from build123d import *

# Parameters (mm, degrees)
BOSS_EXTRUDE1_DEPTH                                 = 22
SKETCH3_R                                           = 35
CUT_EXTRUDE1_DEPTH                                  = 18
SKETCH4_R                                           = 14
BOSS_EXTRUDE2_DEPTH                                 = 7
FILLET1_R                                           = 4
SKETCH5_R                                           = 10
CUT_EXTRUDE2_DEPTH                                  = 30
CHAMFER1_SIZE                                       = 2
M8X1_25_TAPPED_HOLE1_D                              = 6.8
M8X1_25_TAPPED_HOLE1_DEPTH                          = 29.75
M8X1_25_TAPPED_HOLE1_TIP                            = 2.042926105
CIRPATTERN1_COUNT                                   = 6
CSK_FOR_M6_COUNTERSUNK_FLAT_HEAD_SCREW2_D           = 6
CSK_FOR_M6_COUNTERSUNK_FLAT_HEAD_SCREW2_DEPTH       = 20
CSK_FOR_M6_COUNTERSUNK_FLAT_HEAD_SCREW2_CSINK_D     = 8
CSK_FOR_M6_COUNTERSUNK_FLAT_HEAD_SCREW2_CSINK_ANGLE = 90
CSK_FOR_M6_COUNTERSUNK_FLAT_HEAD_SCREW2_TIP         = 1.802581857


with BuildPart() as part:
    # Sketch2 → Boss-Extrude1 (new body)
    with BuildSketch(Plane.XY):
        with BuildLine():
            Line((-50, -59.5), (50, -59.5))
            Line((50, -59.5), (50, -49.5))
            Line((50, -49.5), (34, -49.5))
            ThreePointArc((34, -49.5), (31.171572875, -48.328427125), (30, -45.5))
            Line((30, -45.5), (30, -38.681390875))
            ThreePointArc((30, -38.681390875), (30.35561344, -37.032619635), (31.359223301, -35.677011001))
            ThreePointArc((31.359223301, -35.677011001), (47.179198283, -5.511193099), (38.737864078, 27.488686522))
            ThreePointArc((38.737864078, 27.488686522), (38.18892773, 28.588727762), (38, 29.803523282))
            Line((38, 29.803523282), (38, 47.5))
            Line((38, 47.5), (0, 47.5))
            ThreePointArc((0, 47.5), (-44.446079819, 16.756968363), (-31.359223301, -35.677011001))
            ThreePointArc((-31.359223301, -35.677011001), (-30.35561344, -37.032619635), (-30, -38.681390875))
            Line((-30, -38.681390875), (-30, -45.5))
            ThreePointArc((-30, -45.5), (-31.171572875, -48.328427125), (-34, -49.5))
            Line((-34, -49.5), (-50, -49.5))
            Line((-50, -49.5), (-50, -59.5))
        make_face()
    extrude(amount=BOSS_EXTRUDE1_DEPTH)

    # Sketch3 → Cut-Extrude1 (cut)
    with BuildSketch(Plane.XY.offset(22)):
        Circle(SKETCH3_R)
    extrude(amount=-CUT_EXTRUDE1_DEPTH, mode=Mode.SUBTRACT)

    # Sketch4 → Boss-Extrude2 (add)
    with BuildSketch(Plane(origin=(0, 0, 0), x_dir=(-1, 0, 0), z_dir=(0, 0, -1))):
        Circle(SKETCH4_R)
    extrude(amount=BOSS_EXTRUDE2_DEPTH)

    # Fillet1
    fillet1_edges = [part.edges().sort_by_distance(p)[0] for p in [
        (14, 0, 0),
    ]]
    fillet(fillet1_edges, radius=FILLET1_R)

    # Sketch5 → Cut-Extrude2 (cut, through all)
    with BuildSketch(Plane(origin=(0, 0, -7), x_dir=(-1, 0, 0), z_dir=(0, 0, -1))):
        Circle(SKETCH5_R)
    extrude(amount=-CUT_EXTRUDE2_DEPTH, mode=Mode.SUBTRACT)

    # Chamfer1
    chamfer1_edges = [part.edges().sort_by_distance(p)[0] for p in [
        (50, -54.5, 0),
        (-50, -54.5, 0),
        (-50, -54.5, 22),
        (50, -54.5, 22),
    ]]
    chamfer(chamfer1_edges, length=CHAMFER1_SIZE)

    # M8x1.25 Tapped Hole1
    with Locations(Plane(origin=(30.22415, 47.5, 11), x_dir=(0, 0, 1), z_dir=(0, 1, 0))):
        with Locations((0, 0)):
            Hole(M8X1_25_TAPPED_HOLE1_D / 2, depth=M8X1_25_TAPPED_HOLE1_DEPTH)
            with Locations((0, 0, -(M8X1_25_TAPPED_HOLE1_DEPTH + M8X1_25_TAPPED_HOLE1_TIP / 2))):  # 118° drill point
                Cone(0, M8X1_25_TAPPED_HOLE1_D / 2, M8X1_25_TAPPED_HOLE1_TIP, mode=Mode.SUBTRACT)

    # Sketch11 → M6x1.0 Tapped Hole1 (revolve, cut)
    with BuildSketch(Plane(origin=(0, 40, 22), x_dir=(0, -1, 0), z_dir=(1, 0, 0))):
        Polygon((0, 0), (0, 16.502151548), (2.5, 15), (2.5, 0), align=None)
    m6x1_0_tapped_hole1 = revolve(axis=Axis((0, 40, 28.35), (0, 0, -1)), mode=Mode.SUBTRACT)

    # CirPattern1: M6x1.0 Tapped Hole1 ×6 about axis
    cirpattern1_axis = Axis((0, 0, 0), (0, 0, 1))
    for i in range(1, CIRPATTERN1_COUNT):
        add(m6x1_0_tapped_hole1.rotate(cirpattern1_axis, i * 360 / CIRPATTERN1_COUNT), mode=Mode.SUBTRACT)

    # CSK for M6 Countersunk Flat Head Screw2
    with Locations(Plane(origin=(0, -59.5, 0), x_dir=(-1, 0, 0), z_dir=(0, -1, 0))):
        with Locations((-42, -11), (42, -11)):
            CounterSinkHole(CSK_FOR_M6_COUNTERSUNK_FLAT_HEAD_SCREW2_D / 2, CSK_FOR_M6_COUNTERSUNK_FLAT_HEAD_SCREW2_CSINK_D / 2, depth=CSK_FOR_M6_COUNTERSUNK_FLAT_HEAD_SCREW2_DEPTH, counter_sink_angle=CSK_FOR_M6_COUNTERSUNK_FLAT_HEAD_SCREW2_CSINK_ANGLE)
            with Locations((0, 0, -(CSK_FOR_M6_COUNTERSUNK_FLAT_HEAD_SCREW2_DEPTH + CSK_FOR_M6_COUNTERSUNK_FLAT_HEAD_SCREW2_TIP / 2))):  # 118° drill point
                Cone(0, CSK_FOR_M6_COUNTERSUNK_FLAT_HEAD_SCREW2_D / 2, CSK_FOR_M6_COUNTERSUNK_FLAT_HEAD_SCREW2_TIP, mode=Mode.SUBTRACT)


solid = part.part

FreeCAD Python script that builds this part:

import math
import FreeCAD as App
import Part
import Sketcher
Q = App.Units.Quantity


def edges_at(feature, points):
    """Names of the edges that pass closest to the given points."""
    edges = feature.Shape.Edges
    near = lambda p: min(range(len(edges)), key=lambda i: edges[i].distToShape(Part.Vertex(*p))[0])
    return sorted({f"Edge{near(p) + 1}" for p in points})


def add_polygon(sketch, points):
    """Adds a closed chain of lines whose ends are joined by coincident constraints."""
    first, n = sketch.GeometryCount, len(points)
    for a, b in zip(points, points[1:] + points[:1]):
        sketch.addGeometry(Part.LineSegment(App.Vector(*a, 0), App.Vector(*b, 0)), False)
    for i in range(n):
        sketch.addConstraint(Sketcher.Constraint("Coincident", first + i, 2, first + (i + 1) % n, 1))

doc = App.newDocument("Part")
params = doc.addObject("Spreadsheet::Sheet", "Params")
for row, (alias, value) in enumerate([
    ("sketch1_radius", "4 mm"),
    ("sketch1_radius2", "47.5 mm"),
    ("sketch1_width", "100 mm"),
    ("sketch1_width2", "16 mm"),
    ("sketch1_width3", "38 mm"),
    ("pad1_length", "22 mm"),
    ("sketch2_diameter", "70 mm"),
    ("pocket1_length", "18 mm"),
    ("sketch3_diameter", "28 mm"),
    ("pad2_length", "7 mm"),
    ("fillet_radius", "4 mm"),
    ("sketch4_diameter", "20 mm"),
    ("chamfer_size", "2 mm"),
    ("sketch5_diameter", "6.8 mm"),
    ("hole_diameter", "6.8 mm"),
    ("hole_depth", "29.75 mm"),
    ("sketch6_height", "15 mm"),
    ("sketch6_width", "2.5 mm"),
    ("groove_angle", "360 deg"),
    ("sketch7_diameter", "6 mm"),
    ("hole2_diameter", "6 mm"),
    ("hole2_depth", "20 mm"),
    ("hole2_csink_diameter", "8 mm"),
], start=1):
    params.set(f"A{row}", alias)
    params.set(f"B{row}", "=" + value)
    params.setAlias(f"B{row}", alias)

body = doc.addObject("PartDesign::Body", "Body")

sketch1 = doc.addObject("Sketcher::SketchObject", "Sketch")
body.addObject(sketch1)
sketch1.AttachmentSupport = (doc.XY_Plane, [""])
sketch1.MapMode = "FlatFace"
sketch1.addGeometry([
    Part.LineSegment(App.Vector(-50, -59.5, 0), App.Vector(50, -59.5, 0)),
    Part.LineSegment(App.Vector(50, -59.5, 0), App.Vector(50, -49.5, 0)),
    Part.LineSegment(App.Vector(50, -49.5, 0), App.Vector(34, -49.5, 0)),
    Part.ArcOfCircle(Part.Circle(App.Vector(34, -45.5, 0), App.Vector(0, 0, 1), 4), math.radians(180), math.radians(270)),
    Part.LineSegment(App.Vector(30, -45.5, 0), App.Vector(30, -38.681391, 0)),
    Part.ArcOfCircle(Part.Circle(App.Vector(34, -38.681391, 0), App.Vector(0, 0, 1), 4), math.radians(131.314683), math.radians(180)),
    Part.ArcOfCircle(Part.Circle(App.Vector(0, 0, 0), App.Vector(0, 0, 1), 47.5), math.radians(-48.685317), math.radians(35.359805)),
    Part.ArcOfCircle(Part.Circle(App.Vector(42, 29.803523, 0), App.Vector(0, 0, 1), 4), math.radians(180), math.radians(215.359805)),
    Part.LineSegment(App.Vector(38, 29.803523, 0), App.Vector(38, 47.5, 0)),
    Part.LineSegment(App.Vector(38, 47.5, 0), App.Vector(0, 47.5, 0)),
    Part.ArcOfCircle(Part.Circle(App.Vector(0, 0, 0), App.Vector(0, 0, 1), 47.5), math.radians(90), math.radians(228.685317)),
    Part.ArcOfCircle(Part.Circle(App.Vector(-34, -38.681391, 0), App.Vector(0, 0, 1), 4), math.radians(0), math.radians(48.685317)),
    Part.LineSegment(App.Vector(-30, -38.681391, 0), App.Vector(-30, -45.5, 0)),
    Part.ArcOfCircle(Part.Circle(App.Vector(-34, -45.5, 0), App.Vector(0, 0, 1), 4), math.radians(-90), math.radians(0)),
    Part.LineSegment(App.Vector(-34, -49.5, 0), App.Vector(-50, -49.5, 0)),
    Part.LineSegment(App.Vector(-50, -49.5, 0), App.Vector(-50, -59.5, 0)),
], False)
sketch1.addConstraint([
    Sketcher.Constraint("Coincident", 0, 2, 1, 1),
    Sketcher.Constraint("Coincident", 1, 2, 2, 1),
    Sketcher.Constraint("Tangent", 2, 2, 3, 2),
    Sketcher.Constraint("Tangent", 3, 1, 4, 1),
    Sketcher.Constraint("Tangent", 4, 2, 5, 2),
    Sketcher.Constraint("Tangent", 5, 1, 6, 1),
    Sketcher.Constraint("Tangent", 6, 2, 7, 2),
    Sketcher.Constraint("Tangent", 7, 1, 8, 1),
    Sketcher.Constraint("Coincident", 8, 2, 9, 1),
    Sketcher.Constraint("Tangent", 9, 2, 10, 1),
    Sketcher.Constraint("Tangent", 10, 2, 11, 2),
    Sketcher.Constraint("Tangent", 11, 1, 12, 1),
    Sketcher.Constraint("Tangent", 12, 2, 13, 2),
    Sketcher.Constraint("Tangent", 13, 1, 14, 1),
    Sketcher.Constraint("Coincident", 14, 2, 15, 1),
    Sketcher.Constraint("Coincident", 15, 2, 0, 1),
    Sketcher.Constraint("Horizontal", 0),
    Sketcher.Constraint("Vertical", 1),
    Sketcher.Constraint("Horizontal", 2),
    Sketcher.Constraint("Vertical", 4),
    Sketcher.Constraint("Vertical", 8),
    Sketcher.Constraint("Horizontal", 9),
    Sketcher.Constraint("Vertical", 12),
    Sketcher.Constraint("Horizontal", 14),
    Sketcher.Constraint("Vertical", 15),
    Sketcher.Constraint("Coincident", 6, 3, -1, 1),
    Sketcher.Constraint("Coincident", 10, 3, -1, 1),
    Sketcher.Constraint("Equal", 3, 5),
    Sketcher.Constraint("Equal", 5, 7),
    Sketcher.Constraint("Equal", 6, 10),
    Sketcher.Constraint("Equal", 7, 11),
    Sketcher.Constraint("Equal", 11, 13),
    Sketcher.Constraint("Symmetric", 3, 3, 13, 3, -2),
    Sketcher.Constraint("Equal", 2, 14),
    Sketcher.Constraint("Radius", 3, 4.0),
    Sketcher.Constraint("Radius", 6, 47.5),
    Sketcher.Constraint("DistanceX", 0, 1, 0, 2, 100.0),
    Sketcher.Constraint("DistanceX", 2, 2, 2, 1, 16.0),
    Sketcher.Constraint("DistanceX", 9, 2, 9, 1, 38.0),
    Sketcher.Constraint("DistanceY", 1, 1, 1, 2, 10.0),
    Sketcher.Constraint("DistanceY", 3, 3, -1, 1, 45.5),
])
sketch1.setExpression("Constraints[34]", "Params.sketch1_radius")
sketch1.setExpression("Constraints[35]", "Params.sketch1_radius2")
sketch1.setExpression("Constraints[36]", "Params.sketch1_width")
sketch1.setExpression("Constraints[37]", "Params.sketch1_width2")
sketch1.setExpression("Constraints[38]", "Params.sketch1_width3")
pad1 = doc.addObject("PartDesign::Pad", "Pad")
body.addObject(pad1)
pad1.Profile = sketch1
pad1.setExpression("Length", "Params.pad1_length")

sketch2 = doc.addObject("Sketcher::SketchObject", "Sketch001")
body.addObject(sketch2)
sketch2.AttachmentSupport = (doc.XY_Plane, [""])
sketch2.MapMode = "FlatFace"
sketch2.AttachmentOffset = App.Placement(App.Vector(0, 0, 22), App.Rotation())
sketch2.addGeometry(Part.Circle(App.Vector(0, 0, 0), App.Vector(0, 0, 1), 35), False)
sketch2.addConstraint([
    Sketcher.Constraint("Coincident", 0, 3, -1, 1),
    Sketcher.Constraint("Diameter", 0, 70.0),
])
sketch2.setExpression("Constraints[1]", "Params.sketch2_diameter")
pocket1 = doc.addObject("PartDesign::Pocket", "Pocket")
body.addObject(pocket1)
pocket1.Profile = sketch2
pocket1.setExpression("Length", "Params.pocket1_length")

sketch3 = doc.addObject("Sketcher::SketchObject", "Sketch002")
body.addObject(sketch3)
sketch3.AttachmentSupport = (doc.XY_Plane, [""])
sketch3.MapMode = "FlatFace"
sketch3.addGeometry(Part.Circle(App.Vector(0, 0, 0), App.Vector(0, 0, 1), 14), False)
sketch3.addConstraint([
    Sketcher.Constraint("Coincident", 0, 3, -1, 1),
    Sketcher.Constraint("Diameter", 0, 28.0),
])
sketch3.setExpression("Constraints[1]", "Params.sketch3_diameter")
pad2 = doc.addObject("PartDesign::Pad", "Pad001")
body.addObject(pad2)
pad2.Profile = sketch3
pad2.setExpression("Length", "Params.pad2_length")
pad2.Reversed = True
doc.recompute()

fillet = doc.addObject("PartDesign::Fillet", "Fillet")
body.addObject(fillet)
fillet.Base = (pad2, edges_at(pad2, [(14, 0, 0)]))
fillet.setExpression("Radius", "Params.fillet_radius")

sketch4 = doc.addObject("Sketcher::SketchObject", "Sketch003")
body.addObject(sketch4)
sketch4.AttachmentSupport = (doc.XY_Plane, [""])
sketch4.MapMode = "FlatFace"
sketch4.AttachmentOffset = App.Placement(App.Vector(0, 0, -7), App.Rotation())
sketch4.addGeometry(Part.Circle(App.Vector(0, 0, 0), App.Vector(0, 0, 1), 10), False)
sketch4.addConstraint([
    Sketcher.Constraint("Coincident", 0, 3, -1, 1),
    Sketcher.Constraint("Diameter", 0, 20.0),
])
sketch4.setExpression("Constraints[1]", "Params.sketch4_diameter")
pocket2 = doc.addObject("PartDesign::Pocket", "Pocket001")
body.addObject(pocket2)
pocket2.Profile = sketch4
pocket2.Type = "ThroughAll"
pocket2.Reversed = True
doc.recompute()

chamfer = doc.addObject("PartDesign::Chamfer", "Chamfer")
body.addObject(chamfer)
chamfer.Base = (pocket2, edges_at(pocket2, [
    (50, -54.5, 0),
    (-50, -54.5, 0),
    (-50, -54.5, 22),
    (50, -54.5, 22),
]))
chamfer.setExpression("Size", "Params.chamfer_size")

sketch5 = doc.addObject("Sketcher::SketchObject", "Sketch004")
body.addObject(sketch5)
sketch5.AttachmentSupport = (doc.XZ_Plane, [""])
sketch5.MapMode = "FlatFace"
sketch5.AttachmentOffset = App.Placement(App.Vector(0, 0, -47.5), App.Rotation())
sketch5.addGeometry(Part.Circle(App.Vector(30.22415, 11, 0), App.Vector(0, 0, 1), 3.4), False)
sketch5.addConstraint([
    Sketcher.Constraint("Diameter", 0, 6.8),
    Sketcher.Constraint("DistanceY", -1, 1, 0, 3, 11.0),
    Sketcher.Constraint("DistanceX", -1, 1, 0, 3, 30.22415),
])
sketch5.setExpression("Constraints[0]", "Params.sketch5_diameter")
doc.recompute()
hole = doc.addObject("PartDesign::Hole", "Hole")
body.addObject(hole)
hole.Profile = sketch5
hole.ThreadType = "None"
hole.setExpression("Diameter", "Params.hole_diameter")
hole.DepthType = "Dimension"
hole.setExpression("Depth", "Params.hole_depth")
hole.DrillPoint = "Angled"
hole.DrillPointAngle = 118
hole.Reversed = True

sketch6 = doc.addObject("Sketcher::SketchObject", "Sketch005")
body.addObject(sketch6)
sketch6.AttachmentSupport = (doc.YZ_Plane, [""])
sketch6.MapMode = "FlatFace"
add_polygon(sketch6, [(40, 5.497848), (40, 22), (37.5, 22), (37.5, 7)])
sketch6.addGeometry(Part.LineSegment(App.Vector(40, 22, 0), App.Vector(40, 5.497848, 0)), True)
sketch6.addConstraint([
    Sketcher.Constraint("Vertical", 0),
    Sketcher.Constraint("Horizontal", 1),
    Sketcher.Constraint("Vertical", 2),
    Sketcher.Constraint("Vertical", 4),
    Sketcher.Constraint("Coincident", 4, 1, 0, 2),
    Sketcher.Constraint("Equal", 0, 4),
    Sketcher.Constraint("DistanceY", 2, 2, 2, 1, 15.0),
    Sketcher.Constraint("Angle", 3, Q("-31 deg")),
    Sketcher.Constraint("DistanceX", 1, 2, 1, 1, 2.5),
    Sketcher.Constraint("DistanceX", -1, 1, 0, 2, 40.0),
    Sketcher.Constraint("DistanceY", -1, 1, 0, 2, 22.0),
])
sketch6.setExpression("Constraints[10]", "Params.sketch6_height")
sketch6.setExpression("Constraints[12]", "Params.sketch6_width")
groove = doc.addObject("PartDesign::Groove", "Groove")
body.addObject(groove)
groove.Profile = sketch6
groove.ReferenceAxis = (sketch6, ["Axis0"])
groove.setExpression("Angle", "Params.groove_angle")
doc.recompute()

polarpattern = doc.addObject("PartDesign::PolarPattern", "PolarPattern")
body.addObject(polarpattern)
polarpattern.Originals = [groove]
polarpattern.Axis = (doc.Z_Axis, [""])
polarpattern.Angle = 360
polarpattern.Occurrences = 6
body.Tip = polarpattern

sketch7 = doc.addObject("Sketcher::SketchObject", "Sketch006")
body.addObject(sketch7)
sketch7.AttachmentSupport = (doc.XZ_Plane, [""])
sketch7.MapMode = "FlatFace"
sketch7.AttachmentOffset = App.Placement(App.Vector(0, 0, 59.5), App.Rotation())
sketch7.addGeometry([
    Part.Circle(App.Vector(42, 11, 0), App.Vector(0, 0, 1), 3),
    Part.Circle(App.Vector(-42, 11, 0), App.Vector(0, 0, 1), 3),
], False)
sketch7.addConstraint([
    Sketcher.Constraint("Equal", 0, 1),
    Sketcher.Constraint("Symmetric", 0, 3, 1, 3, -2),
    Sketcher.Constraint("Diameter", 0, 6.0),
    Sketcher.Constraint("DistanceX", -1, 1, 0, 3, 42.0),
    Sketcher.Constraint("DistanceY", -1, 1, 0, 3, 11.0),
])
sketch7.setExpression("Constraints[2]", "Params.sketch7_diameter")
doc.recompute()
hole2 = doc.addObject("PartDesign::Hole", "Hole001")
body.addObject(hole2)
hole2.Profile = sketch7
hole2.ThreadType = "None"
hole2.setExpression("Diameter", "Params.hole2_diameter")
hole2.DepthType = "Dimension"
hole2.setExpression("Depth", "Params.hole2_depth")
hole2.DrillPoint = "Angled"
hole2.DrillPointAngle = 118
hole2.HoleCutType = "Countersink"
hole2.setExpression("HoleCutDiameter", "Params.hole2_csink_diameter")
hole2.HoleCutCountersinkAngle = 90

doc.recompute()
